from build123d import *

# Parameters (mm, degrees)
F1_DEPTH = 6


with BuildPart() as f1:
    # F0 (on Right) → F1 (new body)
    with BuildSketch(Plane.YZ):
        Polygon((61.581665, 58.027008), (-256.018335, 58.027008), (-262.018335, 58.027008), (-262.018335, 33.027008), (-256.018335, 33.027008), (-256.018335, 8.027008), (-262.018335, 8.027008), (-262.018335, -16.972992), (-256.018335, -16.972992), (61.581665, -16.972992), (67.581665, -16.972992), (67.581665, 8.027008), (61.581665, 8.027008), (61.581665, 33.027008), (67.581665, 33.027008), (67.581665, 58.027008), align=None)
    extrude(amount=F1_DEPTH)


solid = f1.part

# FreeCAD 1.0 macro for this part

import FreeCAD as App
import Part
import Sketcher
from FreeCAD import Vector

doc = App.newDocument("Part")
body = doc.addObject("PartDesign::Body", "Body")

# Sketch on YZ plane
sketch1 = body.newObject("Sketcher::SketchObject", "Sketch")
sketch1.AttachmentSupport = (doc.getObject("YZ_Plane"), [""])
sketch1.MapMode = "FlatFace"
sketch1.addGeometry([
    Part.LineSegment(Vector(-262.018335, 58.027008, 0), Vector(-262.018335, 33.027008, 0)),  # 0
    Part.LineSegment(Vector(-262.018335, 33.027008, 0), Vector(-256.018335, 33.027008, 0)),  # 1
    Part.LineSegment(Vector(-256.018335, 33.027008, 0), Vector(-256.018335, 8.027008, 0)),  # 2
    Part.LineSegment(Vector(-256.018335, 8.027008, 0), Vector(-262.018335, 8.027008, 0)),  # 3
    Part.LineSegment(Vector(-262.018335, 8.027008, 0), Vector(-262.018335, -16.972992, 0)),  # 4
    Part.LineSegment(Vector(-262.018335, -16.972992, 0), Vector(67.581665, -16.972992, 0)),  # 5
    Part.LineSegment(Vector(67.581665, -16.972992, 0), Vector(67.581665, 8.027008, 0)),  # 6
    Part.LineSegment(Vector(67.581665, 8.027008, 0), Vector(61.581665, 8.027008, 0)),  # 7
    Part.LineSegment(Vector(61.581665, 8.027008, 0), Vector(61.581665, 33.027008, 0)),  # 8
    Part.LineSegment(Vector(61.581665, 33.027008, 0), Vector(67.581665, 33.027008, 0)),  # 9
    Part.LineSegment(Vector(67.581665, 33.027008, 0), Vector(67.581665, 58.027008, 0)),  # 10
    Part.LineSegment(Vector(67.581665, 58.027008, 0), Vector(-262.018335, 58.027008, 0)),  # 11
], False)
sketch1.addConstraint([
    Sketcher.Constraint("Coincident", 0, 2, 1, 1),
    Sketcher.Constraint("Coincident", 1, 2, 2, 1),
    Sketcher.Constraint("Coincident", 2, 2, 3, 1),
    Sketcher.Constraint("Coincident", 3, 2, 4, 1),
    Sketcher.Constraint("Coincident", 4, 2, 5, 1),
    Sketcher.Constraint("Coincident", 5, 2, 6, 1),
    Sketcher.Constraint("Coincident", 6, 2, 7, 1),
    Sketcher.Constraint("Coincident", 7, 2, 8, 1),
    Sketcher.Constraint("Coincident", 8, 2, 9, 1),
    Sketcher.Constraint("Coincident", 9, 2, 10, 1),
    Sketcher.Constraint("Coincident", 10, 2, 11, 1),
    Sketcher.Constraint("Coincident", 11, 2, 0, 1),
    Sketcher.Constraint("Vertical", 0),
    Sketcher.Constraint("Horizontal", 1),
    Sketcher.Constraint("Vertical", 2),
    Sketcher.Constraint("Horizontal", 3),
    Sketcher.Constraint("Vertical", 4),
    Sketcher.Constraint("Horizontal", 5),
    Sketcher.Constraint("Vertical", 6),
    Sketcher.Constraint("Horizontal", 7),
    Sketcher.Constraint("Vertical", 8),
    Sketcher.Constraint("Horizontal", 9),
    Sketcher.Constraint("Vertical", 10),
    Sketcher.Constraint("Horizontal", 11),
    Sketcher.Constraint("Horizontal", 3, 2, 6, 2),
    Sketcher.Constraint("Horizontal", 1, 2, 8, 2),
    Sketcher.Constraint("Vertical", 0, 2, 3, 2),
    Sketcher.Constraint("Vertical", 6, 2, 9, 2),
    Sketcher.Constraint("Equal", 3, 7),
    Sketcher.Constraint("Equal", 0, 2),
    Sketcher.Constraint("Equal", 2, 4),
    Sketcher.Constraint("DistanceX", 1, 1, 1, 2, 6.0),
    Sketcher.Constraint("DistanceY", 0, 2, 0, 1, 25.0),
    Sketcher.Constraint("DistanceX", 5, 1, 5, 2, 329.6),
    Sketcher.Constraint("DistanceY", -1, 1, 0, 2, 33.027008),
    Sketcher.Constraint("DistanceX", 0, 2, -1, 1, 262.018335),
])
pad1 = body.newObject("PartDesign::Pad", "Pad")
pad1.Profile = sketch1
pad1.Length = 6

doc.recompute()
